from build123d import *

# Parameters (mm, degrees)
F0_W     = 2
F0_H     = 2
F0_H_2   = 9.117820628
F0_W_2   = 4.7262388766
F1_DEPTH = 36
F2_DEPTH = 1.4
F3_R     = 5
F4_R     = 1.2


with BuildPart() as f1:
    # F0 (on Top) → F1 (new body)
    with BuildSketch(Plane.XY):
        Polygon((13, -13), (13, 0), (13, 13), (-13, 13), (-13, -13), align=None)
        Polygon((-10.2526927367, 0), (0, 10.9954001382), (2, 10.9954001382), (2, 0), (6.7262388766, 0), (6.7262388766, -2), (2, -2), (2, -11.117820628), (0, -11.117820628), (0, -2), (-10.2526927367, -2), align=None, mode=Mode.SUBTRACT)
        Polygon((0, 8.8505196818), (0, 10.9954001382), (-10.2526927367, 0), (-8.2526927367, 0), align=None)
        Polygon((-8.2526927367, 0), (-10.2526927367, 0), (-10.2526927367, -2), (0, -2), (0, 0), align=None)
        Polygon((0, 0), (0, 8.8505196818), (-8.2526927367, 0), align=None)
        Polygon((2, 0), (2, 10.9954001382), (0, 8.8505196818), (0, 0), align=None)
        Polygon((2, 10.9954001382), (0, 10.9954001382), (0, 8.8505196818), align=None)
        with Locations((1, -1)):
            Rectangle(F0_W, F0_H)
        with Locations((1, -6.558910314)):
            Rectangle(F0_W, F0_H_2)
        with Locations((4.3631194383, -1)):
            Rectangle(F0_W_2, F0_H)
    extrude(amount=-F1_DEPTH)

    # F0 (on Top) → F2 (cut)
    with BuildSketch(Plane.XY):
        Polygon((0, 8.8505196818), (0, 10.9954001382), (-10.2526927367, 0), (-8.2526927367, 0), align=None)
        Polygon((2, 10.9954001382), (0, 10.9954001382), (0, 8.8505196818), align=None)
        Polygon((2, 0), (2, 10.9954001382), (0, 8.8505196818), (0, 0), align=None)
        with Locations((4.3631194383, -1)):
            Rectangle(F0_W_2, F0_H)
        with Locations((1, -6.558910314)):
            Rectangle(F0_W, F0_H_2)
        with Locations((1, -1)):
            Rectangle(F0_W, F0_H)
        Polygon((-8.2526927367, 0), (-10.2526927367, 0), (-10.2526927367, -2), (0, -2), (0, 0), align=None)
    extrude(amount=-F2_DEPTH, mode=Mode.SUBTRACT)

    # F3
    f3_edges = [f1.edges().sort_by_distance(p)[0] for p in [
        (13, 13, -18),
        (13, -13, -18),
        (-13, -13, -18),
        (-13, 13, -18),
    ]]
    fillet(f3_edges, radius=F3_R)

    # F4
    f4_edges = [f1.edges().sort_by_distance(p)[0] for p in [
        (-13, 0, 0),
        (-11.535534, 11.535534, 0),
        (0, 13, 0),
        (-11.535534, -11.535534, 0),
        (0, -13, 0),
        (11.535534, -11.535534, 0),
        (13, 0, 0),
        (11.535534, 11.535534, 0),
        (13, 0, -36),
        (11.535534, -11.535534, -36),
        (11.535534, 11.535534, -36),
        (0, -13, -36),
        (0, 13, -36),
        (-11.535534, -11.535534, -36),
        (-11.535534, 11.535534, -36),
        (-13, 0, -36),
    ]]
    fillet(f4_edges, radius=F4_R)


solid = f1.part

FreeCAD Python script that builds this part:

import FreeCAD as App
import Part
import Sketcher

V = App.Vector
Q = App.Units.Quantity


def edges_at(feature, points):
    """Names of the edges that pass closest to the given points."""
    edges = feature.Shape.Edges
    near = lambda p: min(range(len(edges)), key=lambda i: edges[i].distToShape(Part.Vertex(*p))[0])
    return sorted({f"Edge{near(p) + 1}" for p in points})


def add_polygon(sketch, points):
    """Adds a closed chain of lines whose ends are joined by coincident constraints."""
    first, n = sketch.GeometryCount, len(points)
    for a, b in zip(points, points[1:] + points[:1]):
        sketch.addGeometry(Part.LineSegment(App.Vector(*a, 0), App.Vector(*b, 0)), False)
    for i in range(n):
        sketch.addConstraint(Sketcher.Constraint("Coincident", first + i, 2, first + (i + 1) % n, 1))

doc = App.newDocument("Part")
body = doc.addObject("PartDesign::Body", "Body")

# Sketch on XY plane
sketch1 = body.newObject("Sketcher::SketchObject", "Sketch")
sketch1.AttachmentSupport = (doc.getObject("XY_Plane"), [""])
sketch1.MapMode = "FlatFace"
add_polygon(sketch1, [(13, -13), (13, 13), (-13, 13), (-13, -13)])  # lines 0-3
sketch1.addConstraint([
    Sketcher.Constraint("Vertical", 0),
    Sketcher.Constraint("Horizontal", 1),
    Sketcher.Constraint("Vertical", 2),
    Sketcher.Constraint("Horizontal", 3),
    Sketcher.Constraint("Symmetric", 0, 2, 2, 2, -1, 1),
    Sketcher.Constraint("Equal", 3, 0),
    Sketcher.Constraint("DistanceX", 1, 2, 1, 1, Q("26 mm")),
])
pad1 = body.newObject("PartDesign::Pad", "Pad")
pad1.Profile = sketch1
pad1.Length = 36
pad1.Reversed = True

# Sketch on XY plane
sketch2 = body.newObject("Sketcher::SketchObject", "Sketch001")
sketch2.AttachmentSupport = (doc.getObject("XY_Plane"), [""])
sketch2.MapMode = "FlatFace"
add_polygon(sketch2, [(0, 11), (-10.3, 0), (-10.3, -2), (0, -2), (0, -11.1), (2, -11.1), (2, -2), (6.7, -2), (6.7, 0), (2, 0), (2, 11)])  # lines 0-10
add_polygon(sketch2, [(-8.3, 0), (0, 8.9), (0, 0)])  # lines 11-13
sketch2.addConstraint([
    Sketcher.Constraint("Vertical", 1),
    Sketcher.Constraint("Horizontal", 2),
    Sketcher.Constraint("Vertical", 3),
    Sketcher.Constraint("Horizontal", 4),
    Sketcher.Constraint("Vertical", 5),
    Sketcher.Constraint("Horizontal", 6),
    Sketcher.Constraint("Vertical", 7),
    Sketcher.Constraint("Horizontal", 8),
    Sketcher.Constraint("Vertical", 9),
    Sketcher.Constraint("Horizontal", 10),
    Sketcher.Constraint("Vertical", 12),
    Sketcher.Constraint("Horizontal", 13),
    Sketcher.Constraint("Coincident", 12, 2, -1, 1),
    Sketcher.Constraint("PointOnObject", 0, 2, -1),
    Sketcher.Constraint("PointOnObject", 2, 2, -2),
    Sketcher.Constraint("PointOnObject", 7, 2, -1),
    Sketcher.Constraint("PointOnObject", 10, 2, -2),
    Sketcher.Constraint("Parallel", 0, 11),
    Sketcher.Constraint("Horizontal", 2, 2, 5, 2),
    Sketcher.Constraint("Vertical", 5, 2, 8, 2),
    Sketcher.Constraint("Equal", 10, 1),
    Sketcher.Constraint("DistanceX", 4, 1, 4, 2, Q("2 mm")),
    Sketcher.Constraint("DistanceX", 0, 2, 13, 2, Q("2 mm")),
    Sketcher.Constraint("DistanceY", 9, 1, 9, 2, Q("10.9954 mm")),
    Sketcher.Constraint("DistanceX", 6, 1, 6, 2, Q("4.726239 mm")),
    Sketcher.Constraint("DistanceY", 3, 2, 3, 1, Q("9.117821 mm")),
    Sketcher.Constraint("DistanceY", 12, 2, 12, 1, Q("8.85052 mm")),
])
pocket1 = body.newObject("PartDesign::Pocket", "Pocket")
pocket1.Profile = sketch2
pocket1.Length = 1.4
doc.recompute()

fillet = body.newObject("PartDesign::Fillet", "Fillet")
fillet.Base = (pocket1, edges_at(pocket1, [
    (13, 13, -18),
    (13, -13, -18),
    (-13, -13, -18),
    (-13, 13, -18),
]))
fillet.Radius = 5
doc.recompute()

fillet2 = body.newObject("PartDesign::Fillet", "Fillet001")
fillet2.Base = (fillet, edges_at(fillet, [
    (-13, 0, 0),
    (-11.536, 11.536, 0),
    (0, 13, 0),
    (-11.536, -11.536, 0),
    (0, -13, 0),
    (11.536, -11.536, 0),
    (13, 0, 0),
    (11.536, 11.536, 0),
    (13, 0, -36),
    (11.536, -11.536, -36),
    (11.536, 11.536, -36),
    (0, -13, -36),
    (0, 13, -36),
    (-11.536, -11.536, -36),
    (-11.536, 11.536, -36),
    (-13, 0, -36),
]))
fillet2.Radius = 1.2

doc.recompute()
